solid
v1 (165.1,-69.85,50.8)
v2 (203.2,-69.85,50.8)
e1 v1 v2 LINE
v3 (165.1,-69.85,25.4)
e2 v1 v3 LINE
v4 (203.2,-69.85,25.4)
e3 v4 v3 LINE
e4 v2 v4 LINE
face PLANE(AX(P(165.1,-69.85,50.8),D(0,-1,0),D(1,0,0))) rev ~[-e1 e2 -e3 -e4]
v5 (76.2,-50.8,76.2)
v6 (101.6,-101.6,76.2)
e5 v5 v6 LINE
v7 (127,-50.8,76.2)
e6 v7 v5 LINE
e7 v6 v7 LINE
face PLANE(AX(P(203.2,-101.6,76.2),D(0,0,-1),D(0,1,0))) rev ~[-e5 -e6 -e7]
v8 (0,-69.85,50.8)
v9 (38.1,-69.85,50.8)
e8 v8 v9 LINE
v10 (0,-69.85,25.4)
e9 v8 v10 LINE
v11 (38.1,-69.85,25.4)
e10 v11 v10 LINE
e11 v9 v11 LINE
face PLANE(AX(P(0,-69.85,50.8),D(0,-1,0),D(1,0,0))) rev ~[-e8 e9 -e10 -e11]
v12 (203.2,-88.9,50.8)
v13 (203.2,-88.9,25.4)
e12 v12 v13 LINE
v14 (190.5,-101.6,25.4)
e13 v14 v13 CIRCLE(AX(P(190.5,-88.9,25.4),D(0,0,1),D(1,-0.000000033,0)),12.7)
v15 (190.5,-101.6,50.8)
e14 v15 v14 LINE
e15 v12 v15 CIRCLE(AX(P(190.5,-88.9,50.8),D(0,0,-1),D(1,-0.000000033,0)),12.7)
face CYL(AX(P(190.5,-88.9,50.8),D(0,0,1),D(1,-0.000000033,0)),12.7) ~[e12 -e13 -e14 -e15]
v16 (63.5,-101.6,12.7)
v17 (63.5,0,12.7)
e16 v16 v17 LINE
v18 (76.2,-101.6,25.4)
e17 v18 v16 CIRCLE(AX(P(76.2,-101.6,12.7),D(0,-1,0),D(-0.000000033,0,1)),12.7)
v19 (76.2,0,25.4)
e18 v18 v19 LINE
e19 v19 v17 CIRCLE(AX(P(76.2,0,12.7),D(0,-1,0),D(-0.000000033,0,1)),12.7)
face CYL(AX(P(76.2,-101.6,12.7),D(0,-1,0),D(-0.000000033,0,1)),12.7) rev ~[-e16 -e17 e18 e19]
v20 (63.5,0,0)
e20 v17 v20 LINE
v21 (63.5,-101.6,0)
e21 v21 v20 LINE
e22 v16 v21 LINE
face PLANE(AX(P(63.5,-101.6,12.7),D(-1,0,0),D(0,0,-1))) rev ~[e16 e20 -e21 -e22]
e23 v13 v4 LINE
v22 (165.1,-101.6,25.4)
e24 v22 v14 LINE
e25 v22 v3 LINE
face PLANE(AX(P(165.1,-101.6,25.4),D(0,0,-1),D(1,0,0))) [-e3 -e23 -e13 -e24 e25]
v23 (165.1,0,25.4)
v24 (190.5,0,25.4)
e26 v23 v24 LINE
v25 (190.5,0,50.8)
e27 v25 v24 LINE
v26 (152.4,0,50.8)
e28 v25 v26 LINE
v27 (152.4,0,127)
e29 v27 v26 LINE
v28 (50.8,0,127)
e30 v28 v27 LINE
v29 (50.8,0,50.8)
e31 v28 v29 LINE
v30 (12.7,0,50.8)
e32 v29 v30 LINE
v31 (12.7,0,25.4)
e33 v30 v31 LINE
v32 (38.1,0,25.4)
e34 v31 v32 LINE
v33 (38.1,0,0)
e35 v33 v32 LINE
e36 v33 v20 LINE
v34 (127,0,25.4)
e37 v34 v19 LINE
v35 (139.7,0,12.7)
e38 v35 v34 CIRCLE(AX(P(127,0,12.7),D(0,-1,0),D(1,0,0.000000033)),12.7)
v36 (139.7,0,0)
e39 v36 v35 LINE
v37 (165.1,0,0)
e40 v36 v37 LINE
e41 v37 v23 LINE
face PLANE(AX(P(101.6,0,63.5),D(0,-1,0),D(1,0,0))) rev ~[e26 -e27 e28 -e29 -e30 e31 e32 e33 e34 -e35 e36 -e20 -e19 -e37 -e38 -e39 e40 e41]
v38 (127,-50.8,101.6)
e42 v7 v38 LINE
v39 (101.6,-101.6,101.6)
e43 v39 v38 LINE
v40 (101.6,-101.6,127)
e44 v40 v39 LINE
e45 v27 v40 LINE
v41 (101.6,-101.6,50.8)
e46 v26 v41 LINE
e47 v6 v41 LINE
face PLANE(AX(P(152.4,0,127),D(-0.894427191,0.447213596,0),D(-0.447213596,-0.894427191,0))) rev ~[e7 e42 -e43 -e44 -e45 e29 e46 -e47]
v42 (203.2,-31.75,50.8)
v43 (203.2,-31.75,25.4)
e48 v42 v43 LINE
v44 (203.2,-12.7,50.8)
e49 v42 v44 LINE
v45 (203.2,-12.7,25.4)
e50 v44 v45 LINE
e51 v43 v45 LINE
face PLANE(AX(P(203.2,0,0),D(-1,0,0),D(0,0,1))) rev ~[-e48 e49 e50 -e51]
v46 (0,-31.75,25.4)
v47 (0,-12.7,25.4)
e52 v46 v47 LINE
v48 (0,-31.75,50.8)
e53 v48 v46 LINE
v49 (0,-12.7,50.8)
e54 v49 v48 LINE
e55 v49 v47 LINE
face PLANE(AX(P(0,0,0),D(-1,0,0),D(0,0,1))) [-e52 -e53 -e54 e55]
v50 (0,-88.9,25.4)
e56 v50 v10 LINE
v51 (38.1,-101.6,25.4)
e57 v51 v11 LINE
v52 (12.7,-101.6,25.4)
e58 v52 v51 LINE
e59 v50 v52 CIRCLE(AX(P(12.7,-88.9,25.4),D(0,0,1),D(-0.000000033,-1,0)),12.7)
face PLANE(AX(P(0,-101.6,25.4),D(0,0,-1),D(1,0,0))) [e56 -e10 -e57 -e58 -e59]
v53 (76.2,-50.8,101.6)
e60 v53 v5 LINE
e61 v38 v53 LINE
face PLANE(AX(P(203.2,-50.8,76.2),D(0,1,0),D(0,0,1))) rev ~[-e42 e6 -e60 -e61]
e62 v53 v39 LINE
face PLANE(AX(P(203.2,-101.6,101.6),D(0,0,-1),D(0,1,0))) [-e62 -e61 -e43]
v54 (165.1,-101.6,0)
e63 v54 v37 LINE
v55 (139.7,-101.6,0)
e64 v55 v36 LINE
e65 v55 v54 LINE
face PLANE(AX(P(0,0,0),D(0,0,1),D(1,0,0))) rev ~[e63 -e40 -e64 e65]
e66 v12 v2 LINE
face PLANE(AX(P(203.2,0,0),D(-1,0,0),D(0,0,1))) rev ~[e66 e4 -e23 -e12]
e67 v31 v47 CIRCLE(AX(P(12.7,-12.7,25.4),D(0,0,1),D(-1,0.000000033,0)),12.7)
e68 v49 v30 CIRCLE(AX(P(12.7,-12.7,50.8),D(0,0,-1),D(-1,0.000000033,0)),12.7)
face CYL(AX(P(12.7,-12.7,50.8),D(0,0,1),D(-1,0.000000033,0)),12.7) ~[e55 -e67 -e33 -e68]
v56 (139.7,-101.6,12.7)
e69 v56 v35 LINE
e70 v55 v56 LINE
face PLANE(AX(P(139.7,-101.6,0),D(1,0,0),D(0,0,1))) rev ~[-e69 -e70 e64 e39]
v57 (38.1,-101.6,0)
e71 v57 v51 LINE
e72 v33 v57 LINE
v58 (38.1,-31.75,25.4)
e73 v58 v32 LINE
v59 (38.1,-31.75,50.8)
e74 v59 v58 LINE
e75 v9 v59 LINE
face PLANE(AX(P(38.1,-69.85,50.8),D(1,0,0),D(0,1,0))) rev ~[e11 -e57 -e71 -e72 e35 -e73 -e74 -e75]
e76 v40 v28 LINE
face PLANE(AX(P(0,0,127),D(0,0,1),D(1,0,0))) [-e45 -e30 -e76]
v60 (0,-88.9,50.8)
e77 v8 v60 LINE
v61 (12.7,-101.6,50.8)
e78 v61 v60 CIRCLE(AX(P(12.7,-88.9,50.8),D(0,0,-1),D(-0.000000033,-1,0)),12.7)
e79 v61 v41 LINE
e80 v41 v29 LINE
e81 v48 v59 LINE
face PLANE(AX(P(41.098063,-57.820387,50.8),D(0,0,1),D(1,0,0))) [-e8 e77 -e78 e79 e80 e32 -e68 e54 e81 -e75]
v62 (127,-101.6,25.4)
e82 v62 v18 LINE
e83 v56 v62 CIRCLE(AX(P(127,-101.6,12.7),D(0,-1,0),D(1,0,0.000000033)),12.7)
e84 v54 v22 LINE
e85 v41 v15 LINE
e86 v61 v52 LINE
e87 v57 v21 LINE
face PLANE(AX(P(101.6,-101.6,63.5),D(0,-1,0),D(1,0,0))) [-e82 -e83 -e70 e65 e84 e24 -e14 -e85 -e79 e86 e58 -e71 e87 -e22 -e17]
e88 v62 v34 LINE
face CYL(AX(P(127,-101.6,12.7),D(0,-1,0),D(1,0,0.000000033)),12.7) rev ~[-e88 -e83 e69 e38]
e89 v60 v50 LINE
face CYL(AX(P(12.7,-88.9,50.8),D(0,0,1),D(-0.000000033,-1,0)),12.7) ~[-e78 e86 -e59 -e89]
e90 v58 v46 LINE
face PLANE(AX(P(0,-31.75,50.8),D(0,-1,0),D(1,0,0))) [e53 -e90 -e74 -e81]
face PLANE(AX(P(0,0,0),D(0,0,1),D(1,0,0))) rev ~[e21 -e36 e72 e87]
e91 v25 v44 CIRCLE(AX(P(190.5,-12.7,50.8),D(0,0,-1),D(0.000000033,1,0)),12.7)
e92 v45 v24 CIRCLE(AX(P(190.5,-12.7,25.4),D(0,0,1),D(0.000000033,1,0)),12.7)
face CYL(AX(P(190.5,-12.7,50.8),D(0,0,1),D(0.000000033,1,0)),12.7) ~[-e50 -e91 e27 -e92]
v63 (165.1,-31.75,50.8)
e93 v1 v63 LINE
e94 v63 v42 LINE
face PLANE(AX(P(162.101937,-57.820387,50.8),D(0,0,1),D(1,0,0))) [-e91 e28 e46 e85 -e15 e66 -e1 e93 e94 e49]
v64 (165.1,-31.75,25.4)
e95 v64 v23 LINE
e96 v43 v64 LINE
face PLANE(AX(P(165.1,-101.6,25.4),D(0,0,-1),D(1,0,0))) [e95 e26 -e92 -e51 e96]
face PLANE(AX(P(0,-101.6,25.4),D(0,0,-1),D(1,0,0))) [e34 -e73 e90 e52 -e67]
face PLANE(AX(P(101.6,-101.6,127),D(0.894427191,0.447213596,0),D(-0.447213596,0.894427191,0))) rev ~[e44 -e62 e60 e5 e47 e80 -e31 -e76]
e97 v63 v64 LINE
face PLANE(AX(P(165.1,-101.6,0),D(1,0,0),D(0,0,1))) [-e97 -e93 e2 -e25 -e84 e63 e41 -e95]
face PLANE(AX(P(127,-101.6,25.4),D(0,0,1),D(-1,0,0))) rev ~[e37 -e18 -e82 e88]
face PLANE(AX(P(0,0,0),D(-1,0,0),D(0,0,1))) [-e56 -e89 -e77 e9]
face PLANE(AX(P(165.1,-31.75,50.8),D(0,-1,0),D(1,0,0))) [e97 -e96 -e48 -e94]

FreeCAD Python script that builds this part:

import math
import FreeCAD as App
import Part
import Sketcher
Q = App.Units.Quantity

doc = App.newDocument("Part")
params = doc.addObject("Spreadsheet::Sheet", "Params")
for row, (alias, value) in enumerate([
    ("sketch1_width", "8 in"),
    ("sketch1_height", "5 in"),
    ("pad1_length", "4 in"),
    ("sketch2_radius", "0.5 in"),
    ("sketch2_width", "3 in"),
    ("sketch2_height", "1 in"),
    ("sketch2_width2", "1.5 in"),
    ("sketch3_width", "2 in"),
    ("sketch3_height", "1 in"),
    ("sketch4_width", "4 in"),
    ("sketch4_width2", "2 in"),
    ("pocket3_length", "3 in"),
    ("sketch5_radius", "0.5 in"),
    ("sketch5_width", "1.5 in"),
    ("sketch6_radius", "0.5 in"),
    ("sketch6_width", "1.5 in"),
], start=1):
    params.set(f"A{row}", alias)
    params.set(f"B{row}", "=" + value)
    params.setAlias(f"B{row}", alias)

body = doc.addObject("PartDesign::Body", "Body")

# Sketch on XZ plane
sketch1 = body.newObject("Sketcher::SketchObject", "Sketch")
sketch1.AttachmentSupport = (doc.getObject("XZ_Plane"), [""])
sketch1.MapMode = "FlatFace"
sketch1.addGeometry([
    Part.LineSegment(App.Vector(0, 127, 0), App.Vector(0, 0, 0)),
    Part.LineSegment(App.Vector(0, 0, 0), App.Vector(203, 0, 0)),
    Part.LineSegment(App.Vector(203, 0, 0), App.Vector(203, 127, 0)),
    Part.LineSegment(App.Vector(203, 127, 0), App.Vector(0, 127, 0)),
], False)
sketch1.addConstraint([
    Sketcher.Constraint("Coincident", 0, 2, 1, 1),
    Sketcher.Constraint("Coincident", 1, 2, 2, 1),
    Sketcher.Constraint("Coincident", 2, 2, 3, 1),
    Sketcher.Constraint("Coincident", 3, 2, 0, 1),
    Sketcher.Constraint("Vertical", 0),
    Sketcher.Constraint("Horizontal", 1),
    Sketcher.Constraint("Vertical", 2),
    Sketcher.Constraint("Horizontal", 3),
    Sketcher.Constraint("Coincident", 0, 2, -1, 1),
    Sketcher.Constraint("DistanceX", 1, 1, 1, 2, Q("8 in")),
    Sketcher.Constraint("DistanceY", 0, 2, 0, 1, Q("5 in")),
])
sketch1.setExpression("Constraints[9]", "Params.sketch1_width")
sketch1.setExpression("Constraints[10]", "Params.sketch1_height")
pad1 = body.newObject("PartDesign::Pad", "Pad")
pad1.Profile = sketch1
pad1.setExpression("Length", "Params.pad1_length")

# Sketch on XZ plane
sketch2 = body.newObject("Sketcher::SketchObject", "Sketch001")
sketch2.AttachmentSupport = (doc.getObject("XZ_Plane"), [""])
sketch2.MapMode = "FlatFace"
sketch2.AttachmentOffset = App.Placement(App.Vector(0, 0, 4 * 25.4), App.Rotation())
sketch2.addGeometry([
    Part.LineSegment(App.Vector(0, 25, 0), App.Vector(0, 0, 0)),  # 0
    Part.LineSegment(App.Vector(0, 0, 0), App.Vector(38, 0, 0)),  # 1
    Part.LineSegment(App.Vector(38, 0, 0), App.Vector(38, 25, 0)),  # 2
    Part.LineSegment(App.Vector(38, 25, 0), App.Vector(0, 25, 0)),  # 3
    Part.LineSegment(App.Vector(64, 13, 0), App.Vector(64, 0, 0)),  # 4
    Part.LineSegment(App.Vector(64, 0, 0), App.Vector(140, 0, 0)),  # 5
    Part.LineSegment(App.Vector(140, 0, 0), App.Vector(140, 13, 0)),  # 6
    Part.ArcOfCircle(Part.Circle(App.Vector(127, 13, 0), App.Vector(0, 0, 1), 13), math.radians(0), math.radians(90)),  # 7
    Part.LineSegment(App.Vector(127, 25, 0), App.Vector(76, 25, 0)),  # 8
    Part.ArcOfCircle(Part.Circle(App.Vector(76, 13, 0), App.Vector(0, 0, 1), 13), math.radians(90), math.radians(180)),  # 9
    Part.LineSegment(App.Vector(165, 25, 0), App.Vector(165, 0, 0)),  # 10
    Part.LineSegment(App.Vector(165, 0, 0), App.Vector(203, 0, 0)),  # 11
    Part.LineSegment(App.Vector(203, 0, 0), App.Vector(203, 25, 0)),  # 12
    Part.LineSegment(App.Vector(203, 25, 0), App.Vector(165, 25, 0)),  # 13
], False)
sketch2.addConstraint([
    Sketcher.Constraint("Coincident", 0, 2, 1, 1),
    Sketcher.Constraint("Coincident", 1, 2, 2, 1),
    Sketcher.Constraint("Coincident", 2, 2, 3, 1),
    Sketcher.Constraint("Coincident", 3, 2, 0, 1),
    Sketcher.Constraint("Coincident", 4, 2, 5, 1),
    Sketcher.Constraint("Coincident", 5, 2, 6, 1),
    Sketcher.Constraint("Tangent", 6, 2, 7, 1),
    Sketcher.Constraint("Tangent", 7, 2, 8, 1),
    Sketcher.Constraint("Tangent", 8, 2, 9, 1),
    Sketcher.Constraint("Tangent", 9, 2, 4, 1),
    Sketcher.Constraint("Coincident", 10, 2, 11, 1),
    Sketcher.Constraint("Coincident", 11, 2, 12, 1),
    Sketcher.Constraint("Coincident", 12, 2, 13, 1),
    Sketcher.Constraint("Coincident", 13, 2, 10, 1),
    Sketcher.Constraint("Vertical", 0),
    Sketcher.Constraint("Horizontal", 1),
    Sketcher.Constraint("Vertical", 2),
    Sketcher.Constraint("Horizontal", 3),
    Sketcher.Constraint("Vertical", 4),
    Sketcher.Constraint("Horizontal", 5),
    Sketcher.Constraint("Vertical", 6),
    Sketcher.Constraint("Horizontal", 8),
    Sketcher.Constraint("Vertical", 10),
    Sketcher.Constraint("Horizontal", 11),
    Sketcher.Constraint("Vertical", 12),
    Sketcher.Constraint("Horizontal", 13),
    Sketcher.Constraint("Coincident", 0, 2, -1, 1),
    Sketcher.Constraint("Equal", 7, 9),
    Sketcher.Constraint("PointOnObject", 4, 2, -1),
    Sketcher.Constraint("PointOnObject", 10, 2, -1),
    Sketcher.Constraint("Horizontal", 3, 2, 7, 2),
    Sketcher.Constraint("Horizontal", 8, 2, 12, 2),
    Sketcher.Constraint("Equal", 3, 11),
    Sketcher.Constraint("Radius", 7, Q("0.5 in")),
    Sketcher.Constraint("DistanceX", 5, 1, 5, 2, Q("3 in")),
    Sketcher.Constraint("DistanceY", 0, 2, 0, 1, Q("1 in")),
    Sketcher.Constraint("DistanceX", 1, 1, 1, 2, Q("1.5 in")),
    Sketcher.Constraint("DistanceX", -1, 1, 7, 3, Q("5 in")),
    Sketcher.Constraint("DistanceX", -1, 1, 11, 2, Q("8 in")),
])
sketch2.setExpression("Constraints[33]", "Params.sketch2_radius")
sketch2.setExpression("Constraints[34]", "Params.sketch2_width")
sketch2.setExpression("Constraints[35]", "Params.sketch2_height")
sketch2.setExpression("Constraints[36]", "Params.sketch2_width2")
pocket1 = body.newObject("PartDesign::Pocket", "Pocket")
pocket1.Profile = sketch2
pocket1.Type = "ThroughAll"

# Sketch on YZ plane
sketch3 = body.newObject("Sketcher::SketchObject", "Sketch002")
sketch3.AttachmentSupport = (doc.getObject("YZ_Plane"), [""])
sketch3.MapMode = "FlatFace"
sketch3.AttachmentOffset = App.Placement(App.Vector(0, 0, 8 * 25.4), App.Rotation())
sketch3.addGeometry([
    Part.LineSegment(App.Vector(-102, 102, 0), App.Vector(-102, 76, 0)),
    Part.LineSegment(App.Vector(-102, 76, 0), App.Vector(-51, 76, 0)),
    Part.LineSegment(App.Vector(-51, 76, 0), App.Vector(-51, 102, 0)),
    Part.LineSegment(App.Vector(-51, 102, 0), App.Vector(-102, 102, 0)),
], False)
sketch3.addConstraint([
    Sketcher.Constraint("Coincident", 0, 2, 1, 1),
    Sketcher.Constraint("Coincident", 1, 2, 2, 1),
    Sketcher.Constraint("Coincident", 2, 2, 3, 1),
    Sketcher.Constraint("Coincident", 3, 2, 0, 1),
    Sketcher.Constraint("Vertical", 0),
    Sketcher.Constraint("Horizontal", 1),
    Sketcher.Constraint("Vertical", 2),
    Sketcher.Constraint("Horizontal", 3),
    Sketcher.Constraint("DistanceX", 1, 1, 1, 2, Q("2 in")),
    Sketcher.Constraint("DistanceY", 0, 2, 0, 1, Q("1 in")),
    Sketcher.Constraint("DistanceX", 0, 2, -1, 1, Q("4 in")),
    Sketcher.Constraint("DistanceY", -1, 1, 0, 2, Q("3 in")),
])
sketch3.setExpression("Constraints[8]", "Params.sketch3_width")
sketch3.setExpression("Constraints[9]", "Params.sketch3_height")
pocket2 = body.newObject("PartDesign::Pocket", "Pocket001")
pocket2.Profile = sketch3
pocket2.Type = "ThroughAll"

# Sketch on XY plane
sketch4 = body.newObject("Sketcher::SketchObject", "Sketch003")
sketch4.AttachmentSupport = (doc.getObject("XY_Plane"), [""])
sketch4.MapMode = "FlatFace"
sketch4.AttachmentOffset = App.Placement(App.Vector(0, 0, 5 * 25.4), App.Rotation())
sketch4.addGeometry([
    Part.LineSegment(App.Vector(0, -102, 0), App.Vector(102, -102, 0)),  # 0
    Part.LineSegment(App.Vector(102, -102, 0), App.Vector(51, 0, 0)),  # 1
    Part.LineSegment(App.Vector(51, 0, 0), App.Vector(0, 0, 0)),  # 2
    Part.LineSegment(App.Vector(0, 0, 0), App.Vector(0, -102, 0)),  # 3
    Part.LineSegment(App.Vector(152, 0, 0), App.Vector(102, -102, 0)),  # 4
    Part.LineSegment(App.Vector(102, -102, 0), App.Vector(203, -102, 0)),  # 5
    Part.LineSegment(App.Vector(203, -102, 0), App.Vector(203, 0, 0)),  # 6
    Part.LineSegment(App.Vector(203, 0, 0), App.Vector(152, 0, 0)),  # 7
], False)
sketch4.addConstraint([
    Sketcher.Constraint("Coincident", 0, 2, 1, 1),
    Sketcher.Constraint("Coincident", 1, 2, 2, 1),
    Sketcher.Constraint("Coincident", 2, 2, 3, 1),
    Sketcher.Constraint("Coincident", 3, 2, 0, 1),
    Sketcher.Constraint("Coincident", 4, 2, 5, 1),
    Sketcher.Constraint("Coincident", 5, 2, 6, 1),
    Sketcher.Constraint("Coincident", 6, 2, 7, 1),
    Sketcher.Constraint("Coincident", 7, 2, 4, 1),
    Sketcher.Constraint("Horizontal", 0),
    Sketcher.Constraint("Horizontal", 2),
    Sketcher.Constraint("Vertical", 3),
    Sketcher.Constraint("Horizontal", 5),
    Sketcher.Constraint("Vertical", 6),
    Sketcher.Constraint("Horizontal", 7),
    Sketcher.Constraint("Coincident", 2, 2, -1, 1),
    Sketcher.Constraint("Coincident", 4, 2, 0, 2),
    Sketcher.Constraint("PointOnObject", 6, 2, -1),
    Sketcher.Constraint("Equal", 0, 5),
    Sketcher.Constraint("Equal", 2, 7),
    Sketcher.Constraint("Equal", 5, 3),
    Sketcher.Constraint("DistanceX", 0, 1, 0, 2, Q("4 in")),
    Sketcher.Constraint("DistanceX", 2, 2, 2, 1, Q("2 in")),
])
sketch4.setExpression("Constraints[20]", "Params.sketch4_width")
sketch4.setExpression("Constraints[21]", "Params.sketch4_width2")
pocket3 = body.newObject("PartDesign::Pocket", "Pocket002")
pocket3.Profile = sketch4
pocket3.setExpression("Length", "Params.pocket3_length")

# Sketch on XY plane
sketch5 = body.newObject("Sketcher::SketchObject", "Sketch004")
sketch5.AttachmentSupport = (doc.getObject("XY_Plane"), [""])
sketch5.MapMode = "FlatFace"
sketch5.AttachmentOffset = App.Placement(App.Vector(0, 0, 2 * 25.4), App.Rotation())
sketch5.addGeometry([
    Part.LineSegment(App.Vector(0, -32, 0), App.Vector(0, -70, 0)),  # 0
    Part.LineSegment(App.Vector(0, -70, 0), App.Vector(38, -70, 0)),  # 1
    Part.LineSegment(App.Vector(38, -70, 0), App.Vector(38, -32, 0)),  # 2
    Part.LineSegment(App.Vector(38, -32, 0), App.Vector(0, -32, 0)),  # 3
    Part.LineSegment(App.Vector(0, 0, 0), App.Vector(0, -13, 0)),  # 4
    Part.ArcOfCircle(Part.Circle(App.Vector(13, -13, 0), App.Vector(0, 0, 1), 13), math.radians(90), math.radians(180)),  # 5
    Part.LineSegment(App.Vector(13, 0, 0), App.Vector(0, 0, 0)),  # 6
    Part.ArcOfCircle(Part.Circle(App.Vector(13, -89, 0), App.Vector(0, 0, 1), 13), math.radians(-180), math.radians(-90)),  # 7
    Part.LineSegment(App.Vector(0, -89, 0), App.Vector(0, -102, 0)),  # 8
    Part.LineSegment(App.Vector(0, -102, 0), App.Vector(13, -102, 0)),  # 9
], False)
sketch5.addConstraint([
    Sketcher.Constraint("Coincident", 0, 2, 1, 1),
    Sketcher.Constraint("Coincident", 1, 2, 2, 1),
    Sketcher.Constraint("Coincident", 2, 2, 3, 1),
    Sketcher.Constraint("Coincident", 3, 2, 0, 1),
    Sketcher.Constraint("Tangent", 4, 2, 5, 2),
    Sketcher.Constraint("Tangent", 5, 1, 6, 1),
    Sketcher.Constraint("Coincident", 6, 2, 4, 1),
    Sketcher.Constraint("Tangent", 7, 1, 8, 1),
    Sketcher.Constraint("Coincident", 8, 2, 9, 1),
    Sketcher.Constraint("Tangent", 9, 2, 7, 2),
    Sketcher.Constraint("Vertical", 0),
    Sketcher.Constraint("Horizontal", 1),
    Sketcher.Constraint("Vertical", 2),
    Sketcher.Constraint("Horizontal", 3),
    Sketcher.Constraint("Vertical", 4),
    Sketcher.Constraint("Horizontal", 6),
    Sketcher.Constraint("Vertical", 8),
    Sketcher.Constraint("Horizontal", 9),
    Sketcher.Constraint("Coincident", 6, 2, -1, 1),
    Sketcher.Constraint("Equal", 5, 7),
    Sketcher.Constraint("PointOnObject", 0, 2, -2),
    Sketcher.Constraint("PointOnObject", 7, 1, -2),
    Sketcher.Constraint("Equal", 3, 0),
    Sketcher.Constraint("Radius", 5, Q("0.5 in")),
    Sketcher.Constraint("DistanceX", 1, 1, 1, 2, Q("1.5 in")),
    Sketcher.Constraint("DistanceY", 8, 2, -1, 1, Q("4 in")),
    Sketcher.Constraint("DistanceY", 0, 2, -1, 1, Q("2.75 in")),
])
sketch5.setExpression("Constraints[23]", "Params.sketch5_radius")
sketch5.setExpression("Constraints[24]", "Params.sketch5_width")
pocket4 = body.newObject("PartDesign::Pocket", "Pocket003")
pocket4.Profile = sketch5
pocket4.Type = "ThroughAll"

# Sketch on XY plane
sketch6 = body.newObject("Sketcher::SketchObject", "Sketch005")
sketch6.AttachmentSupport = (doc.getObject("XY_Plane"), [""])
sketch6.MapMode = "FlatFace"
sketch6.AttachmentOffset = App.Placement(App.Vector(0, 0, 2 * 25.4), App.Rotation())
sketch6.addGeometry([
    Part.LineSegment(App.Vector(165, -32, 0), App.Vector(165, -70, 0)),  # 0
    Part.LineSegment(App.Vector(165, -70, 0), App.Vector(203, -70, 0)),  # 1
    Part.LineSegment(App.Vector(203, -70, 0), App.Vector(203, -32, 0)),  # 2
    Part.LineSegment(App.Vector(203, -32, 0), App.Vector(165, -32, 0)),  # 3
    Part.LineSegment(App.Vector(203, -102, 0), App.Vector(203, -89, 0)),  # 4
    Part.ArcOfCircle(Part.Circle(App.Vector(190, -89, 0), App.Vector(0, 0, 1), 13), math.radians(-90), math.radians(0)),  # 5
    Part.LineSegment(App.Vector(190, -102, 0), App.Vector(203, -102, 0)),  # 6
    Part.ArcOfCircle(Part.Circle(App.Vector(190, -13, 0), App.Vector(0, 0, 1), 13), math.radians(0), math.radians(90)),  # 7
    Part.LineSegment(App.Vector(203, -13, 0), App.Vector(203, 0, 0)),  # 8
    Part.LineSegment(App.Vector(203, 0, 0), App.Vector(190, 0, 0)),  # 9
], False)
sketch6.addConstraint([
    Sketcher.Constraint("Coincident", 0, 2, 1, 1),
    Sketcher.Constraint("Coincident", 1, 2, 2, 1),
    Sketcher.Constraint("Coincident", 2, 2, 3, 1),
    Sketcher.Constraint("Coincident", 3, 2, 0, 1),
    Sketcher.Constraint("Tangent", 4, 2, 5, 2),
    Sketcher.Constraint("Tangent", 5, 1, 6, 1),
    Sketcher.Constraint("Coincident", 6, 2, 4, 1),
    Sketcher.Constraint("Tangent", 7, 1, 8, 1),
    Sketcher.Constraint("Coincident", 8, 2, 9, 1),
    Sketcher.Constraint("Tangent", 9, 2, 7, 2),
    Sketcher.Constraint("Vertical", 0),
    Sketcher.Constraint("Horizontal", 1),
    Sketcher.Constraint("Vertical", 2),
    Sketcher.Constraint("Horizontal", 3),
    Sketcher.Constraint("Vertical", 4),
    Sketcher.Constraint("Horizontal", 6),
    Sketcher.Constraint("Vertical", 8),
    Sketcher.Constraint("Horizontal", 9),
    Sketcher.Constraint("Equal", 5, 7),
    Sketcher.Constraint("PointOnObject", 8, 2, -1),
    Sketcher.Constraint("Vertical", 5, 3, 7, 3),
    Sketcher.Constraint("Vertical", 2, 2, 4, 2),
    Sketcher.Constraint("Equal", 3, 0),
    Sketcher.Constraint("Radius", 5, Q("0.5 in")),
    Sketcher.Constraint("DistanceX", 1, 1, 1, 2, Q("1.5 in")),
    Sketcher.Constraint("DistanceX", -1, 1, 1, 2, Q("8 in")),
    Sketcher.Constraint("DistanceY", 5, 1, -1, 1, Q("4 in")),
    Sketcher.Constraint("DistanceY", 0, 2, -1, 1, Q("2.75 in")),
])
sketch6.setExpression("Constraints[23]", "Params.sketch6_radius")
sketch6.setExpression("Constraints[24]", "Params.sketch6_width")
pocket5 = body.newObject("PartDesign::Pocket", "Pocket004")
pocket5.Profile = sketch6
pocket5.Type = "ThroughAll"

doc.recompute()
